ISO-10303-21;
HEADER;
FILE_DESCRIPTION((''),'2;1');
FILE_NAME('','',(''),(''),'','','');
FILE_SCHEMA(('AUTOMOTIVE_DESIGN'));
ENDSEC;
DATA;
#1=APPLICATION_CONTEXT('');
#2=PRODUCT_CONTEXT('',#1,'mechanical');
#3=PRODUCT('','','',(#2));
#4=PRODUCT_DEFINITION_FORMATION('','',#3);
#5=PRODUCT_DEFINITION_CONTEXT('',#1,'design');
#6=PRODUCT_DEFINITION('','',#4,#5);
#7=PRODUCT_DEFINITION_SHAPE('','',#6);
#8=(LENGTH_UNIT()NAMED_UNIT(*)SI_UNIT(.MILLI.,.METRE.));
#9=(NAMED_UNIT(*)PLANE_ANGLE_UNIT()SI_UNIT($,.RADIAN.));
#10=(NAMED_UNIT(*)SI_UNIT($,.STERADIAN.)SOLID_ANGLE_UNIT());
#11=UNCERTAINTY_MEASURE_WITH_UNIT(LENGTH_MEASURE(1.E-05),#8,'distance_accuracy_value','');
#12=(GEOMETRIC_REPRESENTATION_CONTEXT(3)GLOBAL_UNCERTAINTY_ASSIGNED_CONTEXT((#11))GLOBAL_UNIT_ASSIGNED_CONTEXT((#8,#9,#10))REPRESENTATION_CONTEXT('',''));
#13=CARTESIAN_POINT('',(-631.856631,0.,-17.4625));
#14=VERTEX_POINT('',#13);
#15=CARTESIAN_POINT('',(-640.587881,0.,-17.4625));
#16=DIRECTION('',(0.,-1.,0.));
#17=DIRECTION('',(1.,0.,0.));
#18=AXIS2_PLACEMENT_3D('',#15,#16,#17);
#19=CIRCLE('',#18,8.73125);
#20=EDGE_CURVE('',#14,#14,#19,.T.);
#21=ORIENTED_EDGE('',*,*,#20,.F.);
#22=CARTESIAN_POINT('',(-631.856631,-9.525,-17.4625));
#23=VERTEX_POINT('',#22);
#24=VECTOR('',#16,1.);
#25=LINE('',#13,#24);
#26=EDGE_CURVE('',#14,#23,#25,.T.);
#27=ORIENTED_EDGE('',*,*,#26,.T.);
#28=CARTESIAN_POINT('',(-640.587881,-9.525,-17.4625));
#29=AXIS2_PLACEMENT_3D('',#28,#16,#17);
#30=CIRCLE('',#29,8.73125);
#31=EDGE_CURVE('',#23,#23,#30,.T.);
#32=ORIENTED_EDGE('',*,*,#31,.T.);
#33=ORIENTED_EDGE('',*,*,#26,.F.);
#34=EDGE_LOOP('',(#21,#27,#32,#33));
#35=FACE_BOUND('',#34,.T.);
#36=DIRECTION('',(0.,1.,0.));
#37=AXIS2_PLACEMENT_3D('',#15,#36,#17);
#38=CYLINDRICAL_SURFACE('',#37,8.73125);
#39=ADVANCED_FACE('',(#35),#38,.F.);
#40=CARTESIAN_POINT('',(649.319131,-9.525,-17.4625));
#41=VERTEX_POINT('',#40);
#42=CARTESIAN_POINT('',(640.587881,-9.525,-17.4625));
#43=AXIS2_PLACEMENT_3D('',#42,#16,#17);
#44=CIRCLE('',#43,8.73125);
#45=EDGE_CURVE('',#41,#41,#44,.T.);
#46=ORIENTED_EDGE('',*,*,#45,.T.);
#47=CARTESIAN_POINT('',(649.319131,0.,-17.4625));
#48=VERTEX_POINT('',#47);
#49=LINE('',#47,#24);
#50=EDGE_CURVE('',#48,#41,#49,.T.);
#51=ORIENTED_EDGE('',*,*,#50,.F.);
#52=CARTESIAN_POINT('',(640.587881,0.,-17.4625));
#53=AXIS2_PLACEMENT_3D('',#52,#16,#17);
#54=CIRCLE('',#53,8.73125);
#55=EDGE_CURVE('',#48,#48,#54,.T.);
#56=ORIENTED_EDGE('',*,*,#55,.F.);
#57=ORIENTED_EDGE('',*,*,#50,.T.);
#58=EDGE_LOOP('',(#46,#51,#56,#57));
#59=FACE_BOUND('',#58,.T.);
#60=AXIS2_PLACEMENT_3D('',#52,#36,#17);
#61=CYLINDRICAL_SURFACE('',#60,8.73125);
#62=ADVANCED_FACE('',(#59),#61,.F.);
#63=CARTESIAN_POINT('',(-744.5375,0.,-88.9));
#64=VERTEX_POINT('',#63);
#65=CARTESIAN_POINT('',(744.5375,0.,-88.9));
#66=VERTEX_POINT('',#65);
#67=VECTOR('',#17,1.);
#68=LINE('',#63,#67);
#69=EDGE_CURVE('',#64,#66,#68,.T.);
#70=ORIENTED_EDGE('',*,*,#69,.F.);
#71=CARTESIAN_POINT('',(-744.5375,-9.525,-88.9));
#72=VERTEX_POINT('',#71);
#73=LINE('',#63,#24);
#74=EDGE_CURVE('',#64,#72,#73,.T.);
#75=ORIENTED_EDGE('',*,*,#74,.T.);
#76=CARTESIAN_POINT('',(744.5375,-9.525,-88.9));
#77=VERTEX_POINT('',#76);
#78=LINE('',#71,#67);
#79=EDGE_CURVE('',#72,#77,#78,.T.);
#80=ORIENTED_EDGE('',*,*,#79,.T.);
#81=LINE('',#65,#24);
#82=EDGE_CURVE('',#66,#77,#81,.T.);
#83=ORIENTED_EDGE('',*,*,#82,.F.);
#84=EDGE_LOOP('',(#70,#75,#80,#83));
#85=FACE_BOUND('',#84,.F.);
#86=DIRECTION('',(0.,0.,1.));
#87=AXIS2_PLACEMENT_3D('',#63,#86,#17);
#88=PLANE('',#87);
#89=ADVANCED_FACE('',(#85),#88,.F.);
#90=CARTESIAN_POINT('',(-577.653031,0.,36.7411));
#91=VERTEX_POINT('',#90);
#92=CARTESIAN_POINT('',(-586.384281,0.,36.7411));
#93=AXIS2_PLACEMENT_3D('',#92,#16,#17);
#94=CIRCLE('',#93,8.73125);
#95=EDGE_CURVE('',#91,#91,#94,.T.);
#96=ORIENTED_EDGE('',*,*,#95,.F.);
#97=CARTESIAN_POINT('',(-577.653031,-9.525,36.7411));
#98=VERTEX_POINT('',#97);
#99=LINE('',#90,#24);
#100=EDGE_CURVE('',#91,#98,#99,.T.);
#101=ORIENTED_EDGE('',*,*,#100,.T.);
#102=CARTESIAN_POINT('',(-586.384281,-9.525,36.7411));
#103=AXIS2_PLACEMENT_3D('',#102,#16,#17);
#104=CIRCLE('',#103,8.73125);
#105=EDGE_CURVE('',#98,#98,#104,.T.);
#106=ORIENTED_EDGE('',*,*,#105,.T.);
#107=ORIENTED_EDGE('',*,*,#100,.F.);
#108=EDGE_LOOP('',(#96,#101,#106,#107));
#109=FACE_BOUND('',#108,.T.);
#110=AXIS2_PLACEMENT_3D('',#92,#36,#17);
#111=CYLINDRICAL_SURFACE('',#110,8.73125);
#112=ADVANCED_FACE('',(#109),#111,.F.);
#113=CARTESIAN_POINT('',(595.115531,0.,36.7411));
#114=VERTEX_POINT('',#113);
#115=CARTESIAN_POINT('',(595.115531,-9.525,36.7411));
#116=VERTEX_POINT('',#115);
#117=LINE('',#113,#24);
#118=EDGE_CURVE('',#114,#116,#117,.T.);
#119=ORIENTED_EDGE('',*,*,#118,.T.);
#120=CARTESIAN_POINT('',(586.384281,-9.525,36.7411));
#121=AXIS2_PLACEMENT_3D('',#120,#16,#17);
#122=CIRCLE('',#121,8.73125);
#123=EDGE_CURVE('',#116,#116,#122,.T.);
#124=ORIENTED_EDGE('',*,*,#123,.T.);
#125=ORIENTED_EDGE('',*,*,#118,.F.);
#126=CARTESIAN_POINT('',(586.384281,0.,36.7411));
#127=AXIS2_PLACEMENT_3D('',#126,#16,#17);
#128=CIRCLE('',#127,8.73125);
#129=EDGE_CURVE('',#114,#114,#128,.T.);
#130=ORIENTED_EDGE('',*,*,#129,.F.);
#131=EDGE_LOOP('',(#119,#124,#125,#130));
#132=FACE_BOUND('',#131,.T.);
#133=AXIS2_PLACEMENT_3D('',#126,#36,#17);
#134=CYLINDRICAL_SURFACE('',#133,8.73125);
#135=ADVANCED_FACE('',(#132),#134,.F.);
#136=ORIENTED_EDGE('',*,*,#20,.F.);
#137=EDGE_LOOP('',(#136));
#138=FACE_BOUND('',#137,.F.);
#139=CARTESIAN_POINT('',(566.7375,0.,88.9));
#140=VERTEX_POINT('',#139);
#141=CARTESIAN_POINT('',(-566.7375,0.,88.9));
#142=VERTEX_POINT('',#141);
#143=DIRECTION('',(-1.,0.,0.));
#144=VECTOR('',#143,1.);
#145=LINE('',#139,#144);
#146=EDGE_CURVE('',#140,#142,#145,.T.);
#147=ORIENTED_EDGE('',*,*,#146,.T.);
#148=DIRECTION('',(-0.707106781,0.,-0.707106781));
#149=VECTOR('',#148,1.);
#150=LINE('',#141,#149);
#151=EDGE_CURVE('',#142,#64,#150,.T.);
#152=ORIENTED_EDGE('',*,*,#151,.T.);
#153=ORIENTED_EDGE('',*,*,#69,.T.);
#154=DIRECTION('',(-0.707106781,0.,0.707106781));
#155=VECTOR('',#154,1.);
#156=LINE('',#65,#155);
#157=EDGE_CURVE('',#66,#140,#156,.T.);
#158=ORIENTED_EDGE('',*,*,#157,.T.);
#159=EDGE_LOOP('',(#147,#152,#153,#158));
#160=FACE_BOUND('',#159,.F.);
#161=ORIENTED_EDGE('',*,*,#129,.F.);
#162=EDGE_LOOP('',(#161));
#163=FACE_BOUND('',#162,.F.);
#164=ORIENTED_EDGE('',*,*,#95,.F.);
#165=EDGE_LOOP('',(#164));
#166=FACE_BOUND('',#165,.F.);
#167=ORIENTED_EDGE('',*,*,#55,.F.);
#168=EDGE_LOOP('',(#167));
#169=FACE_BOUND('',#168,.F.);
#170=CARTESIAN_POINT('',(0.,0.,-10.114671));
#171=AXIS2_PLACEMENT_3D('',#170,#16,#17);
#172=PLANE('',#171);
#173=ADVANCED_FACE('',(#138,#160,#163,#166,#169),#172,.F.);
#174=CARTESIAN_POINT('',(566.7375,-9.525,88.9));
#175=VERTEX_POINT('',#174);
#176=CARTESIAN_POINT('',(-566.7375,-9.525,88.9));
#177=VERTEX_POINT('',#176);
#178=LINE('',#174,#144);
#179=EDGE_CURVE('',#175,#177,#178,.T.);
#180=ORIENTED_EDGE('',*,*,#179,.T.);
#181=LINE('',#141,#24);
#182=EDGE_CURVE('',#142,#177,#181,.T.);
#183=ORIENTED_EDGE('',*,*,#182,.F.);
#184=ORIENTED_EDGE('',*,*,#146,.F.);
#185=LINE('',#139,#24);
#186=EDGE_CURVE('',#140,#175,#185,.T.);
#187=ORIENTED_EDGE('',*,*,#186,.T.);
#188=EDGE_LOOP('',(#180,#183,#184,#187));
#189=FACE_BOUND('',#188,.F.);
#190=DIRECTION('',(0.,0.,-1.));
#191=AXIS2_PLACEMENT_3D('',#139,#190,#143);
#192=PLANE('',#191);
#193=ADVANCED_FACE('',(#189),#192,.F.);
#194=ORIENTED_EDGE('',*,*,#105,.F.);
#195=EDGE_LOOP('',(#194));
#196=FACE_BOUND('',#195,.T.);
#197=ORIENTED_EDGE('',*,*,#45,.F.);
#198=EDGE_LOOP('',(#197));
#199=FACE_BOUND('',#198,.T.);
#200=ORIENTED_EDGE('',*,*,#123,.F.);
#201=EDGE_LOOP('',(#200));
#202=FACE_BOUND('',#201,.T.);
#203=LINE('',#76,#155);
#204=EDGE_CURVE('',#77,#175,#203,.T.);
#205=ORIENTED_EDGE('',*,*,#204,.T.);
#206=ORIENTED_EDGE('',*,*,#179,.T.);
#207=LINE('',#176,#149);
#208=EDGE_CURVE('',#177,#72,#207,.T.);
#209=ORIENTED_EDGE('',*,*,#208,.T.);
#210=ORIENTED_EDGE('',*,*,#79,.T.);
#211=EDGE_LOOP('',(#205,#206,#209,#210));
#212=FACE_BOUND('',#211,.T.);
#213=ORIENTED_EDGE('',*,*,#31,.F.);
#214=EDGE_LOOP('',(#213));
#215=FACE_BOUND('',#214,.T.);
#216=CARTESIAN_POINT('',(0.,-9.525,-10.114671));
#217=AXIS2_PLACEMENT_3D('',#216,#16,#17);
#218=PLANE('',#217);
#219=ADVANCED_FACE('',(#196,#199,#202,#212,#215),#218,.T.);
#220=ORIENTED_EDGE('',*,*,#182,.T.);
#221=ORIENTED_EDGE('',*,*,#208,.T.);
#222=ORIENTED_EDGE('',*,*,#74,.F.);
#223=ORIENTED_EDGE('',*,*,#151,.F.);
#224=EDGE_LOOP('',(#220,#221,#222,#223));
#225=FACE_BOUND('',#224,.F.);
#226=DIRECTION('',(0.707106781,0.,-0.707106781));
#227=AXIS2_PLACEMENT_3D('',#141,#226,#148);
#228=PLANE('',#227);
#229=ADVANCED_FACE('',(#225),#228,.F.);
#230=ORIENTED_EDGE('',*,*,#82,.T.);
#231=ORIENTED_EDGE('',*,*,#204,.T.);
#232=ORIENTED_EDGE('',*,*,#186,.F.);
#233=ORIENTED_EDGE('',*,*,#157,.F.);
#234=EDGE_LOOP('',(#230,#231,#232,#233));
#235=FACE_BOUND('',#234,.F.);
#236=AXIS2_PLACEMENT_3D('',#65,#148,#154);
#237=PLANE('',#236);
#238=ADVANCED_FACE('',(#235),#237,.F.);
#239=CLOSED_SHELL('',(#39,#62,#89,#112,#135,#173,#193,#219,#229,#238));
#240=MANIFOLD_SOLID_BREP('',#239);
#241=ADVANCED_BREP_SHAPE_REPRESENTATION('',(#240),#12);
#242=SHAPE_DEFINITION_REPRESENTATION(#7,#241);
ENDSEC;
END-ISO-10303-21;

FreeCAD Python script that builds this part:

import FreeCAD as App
import Part
import Sketcher
from FreeCAD import Vector
Q = App.Units.Quantity

doc = App.newDocument("Part")
body = doc.addObject("PartDesign::Body", "Body")

# Sketch on XZ plane
sketch1 = doc.addObject("Sketcher::SketchObject", "Sketch")
body.addObject(sketch1)
sketch1.AttachmentSupport = (doc.XZ_Plane, [""])
sketch1.MapMode = "FlatFace"
sketch1.addGeometry(Part.LineSegment(Vector(-745, -89, 0), Vector(745, -89, 0)), False)
sketch1.addGeometry(Part.LineSegment(Vector(745, -89, 0), Vector(567, 89, 0)), False)
sketch1.addGeometry(Part.LineSegment(Vector(567, 89, 0), Vector(-567, 89, 0)), False)
sketch1.addGeometry(Part.LineSegment(Vector(-567, 89, 0), Vector(-745, -89, 0)), False)
sketch1.addGeometry(Part.Circle(Vector(-641, -17, 0), Vector(0, 0, 1), 9), False)
sketch1.addGeometry(Part.Circle(Vector(641, -17, 0), Vector(0, 0, 1), 9), False)
sketch1.addGeometry(Part.Circle(Vector(-586, 37, 0), Vector(0, 0, 1), 9), False)
sketch1.addGeometry(Part.Circle(Vector(586, 37, 0), Vector(0, 0, 1), 9), False)
sketch1.addConstraint(Sketcher.Constraint("Coincident", 0, 2, 1, 1))
sketch1.addConstraint(Sketcher.Constraint("Coincident", 1, 2, 2, 1))
sketch1.addConstraint(Sketcher.Constraint("Coincident", 2, 2, 3, 1))
sketch1.addConstraint(Sketcher.Constraint("Coincident", 3, 2, 0, 1))
sketch1.addConstraint(Sketcher.Constraint("Horizontal", 0))
sketch1.addConstraint(Sketcher.Constraint("Horizontal", 2))
sketch1.addConstraint(Sketcher.Constraint("Equal", 4, 5))
sketch1.addConstraint(Sketcher.Constraint("Equal", 5, 6))
sketch1.addConstraint(Sketcher.Constraint("Equal", 6, 7))
sketch1.addConstraint(Sketcher.Constraint("Symmetric", 4, 3, 5, 3, -2))
sketch1.addConstraint(Sketcher.Constraint("Symmetric", 6, 3, 7, 3, -2))
sketch1.addConstraint(Sketcher.Constraint("Perpendicular", 1, 3))
sketch1.addConstraint(Sketcher.Constraint("Equal", 1, 3))
sketch1.addConstraint(Sketcher.Constraint("Diameter", 4, Q("0.6875 in")))
sketch1.addConstraint(Sketcher.Constraint("DistanceX", 1, 2, 0, 2, Q("7 in")))
sketch1.addConstraint(Sketcher.Constraint("DistanceY", 0, 2, -1, 1, Q("3.5 in")))
sketch1.addConstraint(Sketcher.Constraint("DistanceX", 0, 1, 0, 2, Q("58.625 in")))
sketch1.addConstraint(Sketcher.Constraint("DistanceY", 4, 3, -1, 1, Q("0.6875 in")))
sketch1.addConstraint(Sketcher.Constraint("DistanceX", -1, 1, 0, 2, Q("29.3125 in")))
sketch1.addConstraint(Sketcher.Constraint("DistanceX", 4, 3, 6, 3, Q("2.134 in")))
sketch1.addConstraint(Sketcher.Constraint("DistanceY", 4, 3, 6, 3, Q("2.134 in")))
sketch1.addConstraint(Sketcher.Constraint("DistanceX", 4, 3, -1, 1, 640.587881))
pad1 = doc.addObject("PartDesign::Pad", "Pad")
body.addObject(pad1)
pad1.Profile = sketch1
pad1.Length = Q("0.375 in")

doc.recompute()
